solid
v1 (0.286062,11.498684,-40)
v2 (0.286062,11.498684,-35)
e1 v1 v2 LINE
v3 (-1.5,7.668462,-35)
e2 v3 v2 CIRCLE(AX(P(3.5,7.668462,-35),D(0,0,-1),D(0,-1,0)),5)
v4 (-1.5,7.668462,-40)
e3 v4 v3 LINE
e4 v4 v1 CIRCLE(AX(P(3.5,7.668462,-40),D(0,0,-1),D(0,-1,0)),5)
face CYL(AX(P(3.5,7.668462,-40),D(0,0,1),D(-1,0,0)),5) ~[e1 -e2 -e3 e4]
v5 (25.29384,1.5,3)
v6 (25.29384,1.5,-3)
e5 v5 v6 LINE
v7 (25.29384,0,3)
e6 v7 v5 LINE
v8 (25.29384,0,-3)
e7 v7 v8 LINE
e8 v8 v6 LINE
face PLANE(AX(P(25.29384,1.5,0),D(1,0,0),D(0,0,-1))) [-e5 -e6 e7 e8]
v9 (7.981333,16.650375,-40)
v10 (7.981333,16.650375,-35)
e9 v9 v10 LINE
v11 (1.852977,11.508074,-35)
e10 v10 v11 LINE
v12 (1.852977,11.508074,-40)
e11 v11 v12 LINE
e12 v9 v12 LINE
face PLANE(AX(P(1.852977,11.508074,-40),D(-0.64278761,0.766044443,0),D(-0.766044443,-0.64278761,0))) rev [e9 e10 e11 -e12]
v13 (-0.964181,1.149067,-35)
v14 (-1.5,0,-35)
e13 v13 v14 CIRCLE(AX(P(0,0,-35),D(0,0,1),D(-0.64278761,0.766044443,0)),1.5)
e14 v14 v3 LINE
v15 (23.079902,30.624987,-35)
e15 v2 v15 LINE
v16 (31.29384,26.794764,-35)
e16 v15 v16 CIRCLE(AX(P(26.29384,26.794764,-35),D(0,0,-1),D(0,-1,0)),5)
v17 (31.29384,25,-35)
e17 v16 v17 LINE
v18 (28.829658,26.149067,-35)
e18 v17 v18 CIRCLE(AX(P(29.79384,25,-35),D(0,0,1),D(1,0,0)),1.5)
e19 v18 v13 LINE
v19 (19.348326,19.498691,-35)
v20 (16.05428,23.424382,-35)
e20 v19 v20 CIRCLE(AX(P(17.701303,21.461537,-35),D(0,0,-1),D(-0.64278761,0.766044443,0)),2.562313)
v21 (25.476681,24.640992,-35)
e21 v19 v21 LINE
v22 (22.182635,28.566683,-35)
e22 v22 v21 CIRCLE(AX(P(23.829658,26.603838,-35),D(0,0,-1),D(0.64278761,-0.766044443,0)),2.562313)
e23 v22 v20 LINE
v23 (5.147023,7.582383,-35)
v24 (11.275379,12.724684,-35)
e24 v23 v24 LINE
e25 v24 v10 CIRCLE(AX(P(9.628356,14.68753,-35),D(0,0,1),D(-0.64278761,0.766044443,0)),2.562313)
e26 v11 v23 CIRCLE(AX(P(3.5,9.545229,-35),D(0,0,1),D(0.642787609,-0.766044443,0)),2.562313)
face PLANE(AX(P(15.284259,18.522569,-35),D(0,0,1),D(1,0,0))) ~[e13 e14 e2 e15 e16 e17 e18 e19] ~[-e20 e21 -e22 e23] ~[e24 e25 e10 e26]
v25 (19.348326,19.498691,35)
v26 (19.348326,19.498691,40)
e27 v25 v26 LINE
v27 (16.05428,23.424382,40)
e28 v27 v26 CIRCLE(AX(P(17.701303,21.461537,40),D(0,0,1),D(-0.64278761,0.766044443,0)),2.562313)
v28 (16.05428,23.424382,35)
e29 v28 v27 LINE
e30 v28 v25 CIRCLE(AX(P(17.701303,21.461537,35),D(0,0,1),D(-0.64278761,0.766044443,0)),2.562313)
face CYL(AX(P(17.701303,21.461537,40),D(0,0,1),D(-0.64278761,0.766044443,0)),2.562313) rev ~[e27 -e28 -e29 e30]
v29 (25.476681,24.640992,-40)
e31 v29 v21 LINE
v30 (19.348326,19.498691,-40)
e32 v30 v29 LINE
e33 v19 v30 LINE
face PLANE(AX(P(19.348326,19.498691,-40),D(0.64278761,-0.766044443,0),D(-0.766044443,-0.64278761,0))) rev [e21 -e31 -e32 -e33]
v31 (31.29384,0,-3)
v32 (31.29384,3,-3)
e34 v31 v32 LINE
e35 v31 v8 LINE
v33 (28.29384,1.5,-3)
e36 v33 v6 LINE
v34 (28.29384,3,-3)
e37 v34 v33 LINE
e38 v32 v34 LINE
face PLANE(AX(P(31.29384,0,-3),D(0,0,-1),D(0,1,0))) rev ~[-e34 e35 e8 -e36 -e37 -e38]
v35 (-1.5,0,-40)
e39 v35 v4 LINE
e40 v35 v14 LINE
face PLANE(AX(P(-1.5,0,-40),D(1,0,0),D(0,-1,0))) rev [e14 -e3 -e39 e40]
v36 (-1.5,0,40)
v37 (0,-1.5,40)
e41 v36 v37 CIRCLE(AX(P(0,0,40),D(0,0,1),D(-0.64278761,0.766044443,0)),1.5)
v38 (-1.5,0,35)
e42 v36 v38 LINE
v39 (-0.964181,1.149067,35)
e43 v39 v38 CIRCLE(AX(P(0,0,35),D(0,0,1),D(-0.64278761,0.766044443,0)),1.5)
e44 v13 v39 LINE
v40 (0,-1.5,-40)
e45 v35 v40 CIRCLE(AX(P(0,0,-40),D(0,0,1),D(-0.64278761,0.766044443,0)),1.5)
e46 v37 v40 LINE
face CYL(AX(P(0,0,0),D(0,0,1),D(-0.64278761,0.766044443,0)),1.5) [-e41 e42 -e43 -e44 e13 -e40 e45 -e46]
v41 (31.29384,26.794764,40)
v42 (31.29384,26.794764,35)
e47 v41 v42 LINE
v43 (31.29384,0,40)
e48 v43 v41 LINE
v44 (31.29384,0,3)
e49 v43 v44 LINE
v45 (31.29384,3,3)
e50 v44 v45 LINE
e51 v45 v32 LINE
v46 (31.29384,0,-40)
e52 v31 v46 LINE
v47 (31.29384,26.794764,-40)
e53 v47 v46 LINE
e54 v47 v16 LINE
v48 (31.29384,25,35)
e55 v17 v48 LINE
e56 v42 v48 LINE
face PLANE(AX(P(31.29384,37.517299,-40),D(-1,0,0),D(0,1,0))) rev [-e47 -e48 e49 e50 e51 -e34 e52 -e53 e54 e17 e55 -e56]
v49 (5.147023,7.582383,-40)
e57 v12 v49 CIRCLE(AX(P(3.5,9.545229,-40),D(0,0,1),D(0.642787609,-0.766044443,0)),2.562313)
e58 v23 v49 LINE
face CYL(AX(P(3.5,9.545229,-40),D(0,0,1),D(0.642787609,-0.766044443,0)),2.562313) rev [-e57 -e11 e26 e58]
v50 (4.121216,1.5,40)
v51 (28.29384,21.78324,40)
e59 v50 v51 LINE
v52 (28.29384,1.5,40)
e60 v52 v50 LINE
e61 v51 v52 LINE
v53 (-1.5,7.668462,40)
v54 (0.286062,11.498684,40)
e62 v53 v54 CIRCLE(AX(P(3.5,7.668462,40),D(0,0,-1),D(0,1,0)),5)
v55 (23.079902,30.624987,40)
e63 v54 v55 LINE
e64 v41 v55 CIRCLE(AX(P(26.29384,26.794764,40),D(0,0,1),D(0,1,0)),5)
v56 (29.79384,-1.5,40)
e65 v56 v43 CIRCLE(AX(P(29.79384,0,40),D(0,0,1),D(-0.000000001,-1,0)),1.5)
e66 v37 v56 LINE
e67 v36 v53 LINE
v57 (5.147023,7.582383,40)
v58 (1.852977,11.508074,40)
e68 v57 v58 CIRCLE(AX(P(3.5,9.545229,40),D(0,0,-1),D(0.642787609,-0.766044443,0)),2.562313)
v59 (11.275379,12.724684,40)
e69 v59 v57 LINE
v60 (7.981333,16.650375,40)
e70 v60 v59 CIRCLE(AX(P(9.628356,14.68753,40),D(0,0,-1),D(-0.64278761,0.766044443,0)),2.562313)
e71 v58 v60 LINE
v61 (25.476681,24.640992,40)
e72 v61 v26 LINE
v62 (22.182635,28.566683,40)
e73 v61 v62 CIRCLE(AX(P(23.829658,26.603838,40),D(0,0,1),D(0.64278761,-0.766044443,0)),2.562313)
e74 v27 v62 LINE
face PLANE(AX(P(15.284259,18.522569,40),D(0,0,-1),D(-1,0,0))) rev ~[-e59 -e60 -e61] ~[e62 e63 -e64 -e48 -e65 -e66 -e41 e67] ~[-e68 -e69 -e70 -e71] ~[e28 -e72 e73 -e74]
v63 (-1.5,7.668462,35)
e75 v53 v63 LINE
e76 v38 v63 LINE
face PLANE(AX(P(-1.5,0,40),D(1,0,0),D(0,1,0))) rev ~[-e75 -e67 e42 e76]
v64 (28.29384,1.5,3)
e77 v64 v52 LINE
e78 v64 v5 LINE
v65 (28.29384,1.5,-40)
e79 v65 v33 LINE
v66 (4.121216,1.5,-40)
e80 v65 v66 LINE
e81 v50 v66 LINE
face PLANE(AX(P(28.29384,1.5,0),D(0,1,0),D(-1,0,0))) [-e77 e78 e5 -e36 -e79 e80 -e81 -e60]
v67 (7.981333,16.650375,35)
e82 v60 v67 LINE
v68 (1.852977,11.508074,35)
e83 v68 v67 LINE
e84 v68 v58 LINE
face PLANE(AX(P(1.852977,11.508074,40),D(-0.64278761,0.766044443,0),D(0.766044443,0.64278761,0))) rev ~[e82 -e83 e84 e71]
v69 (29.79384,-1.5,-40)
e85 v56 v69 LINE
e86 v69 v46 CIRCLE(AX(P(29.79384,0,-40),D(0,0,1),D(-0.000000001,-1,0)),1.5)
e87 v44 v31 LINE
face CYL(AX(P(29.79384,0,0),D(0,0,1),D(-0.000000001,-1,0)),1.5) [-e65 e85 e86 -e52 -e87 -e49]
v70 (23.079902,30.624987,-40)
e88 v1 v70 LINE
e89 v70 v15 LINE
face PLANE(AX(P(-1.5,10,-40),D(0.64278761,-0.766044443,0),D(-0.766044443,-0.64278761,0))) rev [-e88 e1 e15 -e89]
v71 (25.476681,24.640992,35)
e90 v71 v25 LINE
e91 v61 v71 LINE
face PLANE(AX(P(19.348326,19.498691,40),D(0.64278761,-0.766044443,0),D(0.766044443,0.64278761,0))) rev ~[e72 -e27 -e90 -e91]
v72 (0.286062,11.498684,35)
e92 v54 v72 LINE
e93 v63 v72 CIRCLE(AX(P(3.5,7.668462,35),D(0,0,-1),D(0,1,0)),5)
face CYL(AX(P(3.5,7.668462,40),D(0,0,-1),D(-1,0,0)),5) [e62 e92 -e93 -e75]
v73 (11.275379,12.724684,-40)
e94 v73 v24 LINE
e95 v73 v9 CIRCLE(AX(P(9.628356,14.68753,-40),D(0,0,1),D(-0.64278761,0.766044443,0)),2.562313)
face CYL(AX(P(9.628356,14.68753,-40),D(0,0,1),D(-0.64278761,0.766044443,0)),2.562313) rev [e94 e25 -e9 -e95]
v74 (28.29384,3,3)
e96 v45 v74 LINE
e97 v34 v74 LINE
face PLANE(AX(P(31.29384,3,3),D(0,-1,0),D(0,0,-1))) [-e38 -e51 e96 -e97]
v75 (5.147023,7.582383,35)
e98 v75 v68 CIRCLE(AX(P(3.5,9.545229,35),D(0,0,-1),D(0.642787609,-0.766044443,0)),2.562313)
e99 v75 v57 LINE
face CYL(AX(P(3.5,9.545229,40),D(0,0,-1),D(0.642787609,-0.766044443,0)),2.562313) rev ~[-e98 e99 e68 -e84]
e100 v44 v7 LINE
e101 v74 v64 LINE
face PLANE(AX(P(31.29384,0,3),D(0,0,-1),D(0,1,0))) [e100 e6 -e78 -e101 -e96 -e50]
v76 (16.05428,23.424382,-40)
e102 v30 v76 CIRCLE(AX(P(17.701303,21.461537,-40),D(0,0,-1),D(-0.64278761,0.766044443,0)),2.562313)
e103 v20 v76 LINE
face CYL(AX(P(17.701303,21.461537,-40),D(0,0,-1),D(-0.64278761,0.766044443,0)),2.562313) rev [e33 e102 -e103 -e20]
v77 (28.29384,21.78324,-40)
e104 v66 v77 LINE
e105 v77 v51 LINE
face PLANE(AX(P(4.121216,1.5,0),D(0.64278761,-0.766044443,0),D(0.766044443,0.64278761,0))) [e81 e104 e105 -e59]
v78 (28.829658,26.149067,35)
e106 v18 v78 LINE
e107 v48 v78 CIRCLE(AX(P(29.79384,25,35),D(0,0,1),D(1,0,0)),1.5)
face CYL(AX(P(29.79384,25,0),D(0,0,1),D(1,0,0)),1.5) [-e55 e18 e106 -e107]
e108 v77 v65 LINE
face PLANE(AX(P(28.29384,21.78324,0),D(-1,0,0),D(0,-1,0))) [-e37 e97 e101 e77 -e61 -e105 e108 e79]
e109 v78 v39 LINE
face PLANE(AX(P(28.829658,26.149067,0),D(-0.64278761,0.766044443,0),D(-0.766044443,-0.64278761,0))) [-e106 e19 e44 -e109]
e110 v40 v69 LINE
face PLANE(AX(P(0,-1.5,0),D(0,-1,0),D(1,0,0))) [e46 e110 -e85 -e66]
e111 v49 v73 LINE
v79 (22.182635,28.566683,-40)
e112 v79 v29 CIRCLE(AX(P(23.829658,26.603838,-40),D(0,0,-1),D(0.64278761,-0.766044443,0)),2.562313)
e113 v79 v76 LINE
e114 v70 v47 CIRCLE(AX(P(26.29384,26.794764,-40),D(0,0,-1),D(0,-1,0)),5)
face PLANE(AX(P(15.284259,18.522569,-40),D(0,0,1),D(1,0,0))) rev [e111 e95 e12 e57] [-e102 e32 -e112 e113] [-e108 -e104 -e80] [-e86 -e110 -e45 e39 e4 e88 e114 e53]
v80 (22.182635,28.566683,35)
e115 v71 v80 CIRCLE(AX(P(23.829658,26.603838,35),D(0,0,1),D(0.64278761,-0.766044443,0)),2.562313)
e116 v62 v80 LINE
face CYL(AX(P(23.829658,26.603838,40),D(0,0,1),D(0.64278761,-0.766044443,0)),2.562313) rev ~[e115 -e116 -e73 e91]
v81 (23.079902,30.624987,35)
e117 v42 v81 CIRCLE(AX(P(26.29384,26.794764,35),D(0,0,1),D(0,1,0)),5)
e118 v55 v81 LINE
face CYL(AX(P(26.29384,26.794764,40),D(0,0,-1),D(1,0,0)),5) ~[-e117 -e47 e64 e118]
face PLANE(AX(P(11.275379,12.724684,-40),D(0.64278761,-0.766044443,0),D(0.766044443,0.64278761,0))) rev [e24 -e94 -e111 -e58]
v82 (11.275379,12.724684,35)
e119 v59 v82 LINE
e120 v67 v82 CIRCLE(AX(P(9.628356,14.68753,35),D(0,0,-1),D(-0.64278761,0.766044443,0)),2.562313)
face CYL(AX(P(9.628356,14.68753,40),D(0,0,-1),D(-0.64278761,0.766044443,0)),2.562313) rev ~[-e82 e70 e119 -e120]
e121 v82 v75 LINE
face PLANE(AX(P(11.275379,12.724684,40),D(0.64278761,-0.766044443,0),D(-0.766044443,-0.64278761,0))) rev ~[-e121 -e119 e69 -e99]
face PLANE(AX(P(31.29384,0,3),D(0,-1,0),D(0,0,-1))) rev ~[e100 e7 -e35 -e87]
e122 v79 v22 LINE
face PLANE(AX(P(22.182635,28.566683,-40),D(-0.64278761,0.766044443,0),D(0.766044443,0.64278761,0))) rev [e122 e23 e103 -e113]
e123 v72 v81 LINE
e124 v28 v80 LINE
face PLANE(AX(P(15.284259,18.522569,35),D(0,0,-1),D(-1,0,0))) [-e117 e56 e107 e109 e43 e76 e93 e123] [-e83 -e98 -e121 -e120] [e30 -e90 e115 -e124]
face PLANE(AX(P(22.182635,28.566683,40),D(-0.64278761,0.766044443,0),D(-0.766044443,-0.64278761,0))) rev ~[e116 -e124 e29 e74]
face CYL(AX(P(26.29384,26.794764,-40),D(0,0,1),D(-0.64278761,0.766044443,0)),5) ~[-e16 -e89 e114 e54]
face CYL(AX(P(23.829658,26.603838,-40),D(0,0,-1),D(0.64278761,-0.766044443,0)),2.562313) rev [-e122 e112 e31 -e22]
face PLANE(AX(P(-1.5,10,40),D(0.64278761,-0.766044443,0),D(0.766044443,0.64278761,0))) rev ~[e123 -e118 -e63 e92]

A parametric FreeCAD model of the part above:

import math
import FreeCAD as App
import Part
import Sketcher

V = App.Vector
Q = App.Units.Quantity


def edges_at(feature, points):
    """Names of the edges that pass closest to the given points."""
    edges = feature.Shape.Edges
    near = lambda p: min(range(len(edges)), key=lambda i: edges[i].distToShape(Part.Vertex(*p))[0])
    return sorted({f"Edge{near(p) + 1}" for p in points})


def add_polygon(sketch, points):
    """Adds a closed chain of lines whose ends are joined by coincident constraints."""
    first, n = sketch.GeometryCount, len(points)
    for a, b in zip(points, points[1:] + points[:1]):
        sketch.addGeometry(Part.LineSegment(App.Vector(*a, 0), App.Vector(*b, 0)), False)
    for i in range(n):
        sketch.addConstraint(Sketcher.Constraint("Coincident", first + i, 2, first + (i + 1) % n, 1))

doc = App.newDocument("Part")
body = doc.addObject("PartDesign::Body", "Body")

sketch1 = body.newObject("Sketcher::SketchObject", "Sketch")
sketch1.AttachmentSupport = (doc.getObject("XY_Plane"), [""])
sketch1.MapMode = "FlatFace"
sketch1.addGeometry(Part.LineSegment(V(31.29384, 0, 0), V(31.29384, 25, 0)), False)
sketch1.addGeometry(Part.ArcOfCircle(Part.Circle(V(29.79384, 25, 0), V(0, 0, 1), 1.5), math.radians(0), math.radians(130)), False)
sketch1.addGeometry(Part.LineSegment(V(28.829658, 26.149067, 0), V(-0.964181, 1.149067, 0)), False)
sketch1.addGeometry(Part.ArcOfCircle(Part.Circle(V(0, 0, 0), V(0, 0, 1), 1.5), math.radians(130), math.radians(270)), False)
sketch1.addGeometry(Part.LineSegment(V(0, -1.5, 0), V(29.79384, -1.5, 0)), False)
sketch1.addGeometry(Part.ArcOfCircle(Part.Circle(V(29.79384, 0, 0), V(0, 0, 1), 1.5), math.radians(-90), math.radians(0)), False)
add_polygon(sketch1, [(4.121216, 1.5), (28.29384, 21.78324), (28.29384, 1.5)])
sketch1.addConstraint([
    Sketcher.Constraint("Tangent", 0, 2, 1, 1),
    Sketcher.Constraint("Tangent", 1, 2, 2, 1),
    Sketcher.Constraint("Tangent", 2, 2, 3, 1),
    Sketcher.Constraint("Tangent", 3, 2, 4, 1),
    Sketcher.Constraint("Tangent", 4, 2, 5, 1),
    Sketcher.Constraint("Tangent", 5, 2, 0, 1),
    Sketcher.Constraint("Vertical", 0),
    Sketcher.Constraint("Horizontal", 4),
    Sketcher.Constraint("Vertical", 7),
    Sketcher.Constraint("Horizontal", 8),
    Sketcher.Constraint("Coincident", 3, 3, -1, 1),
    Sketcher.Constraint("Equal", 1, 3),
    Sketcher.Constraint("Equal", 3, 5),
    Sketcher.Constraint("Parallel", 2, 6),
    Sketcher.Constraint("Radius", 1, Q("1.5 mm")),
    Sketcher.Constraint("DistanceY", 0, 1, 0, 2, Q("25 mm")),
    Sketcher.Constraint("Angle", 2, Q("-140 deg")),
    Sketcher.Constraint("DistanceX", 6, 2, 0, 2, Q("3 mm")),
    Sketcher.Constraint("DistanceY", 4, 2, 7, 2, Q("3 mm")),
    Sketcher.Constraint("DistanceY", 7, 2, 7, 1, Q("20.28324 mm")),
])
pad1 = body.newObject("PartDesign::Pad", "Pad")
pad1.Profile = sketch1
pad1.Length = 80
pad1.Midplane = True

sketch2 = body.newObject("Sketcher::SketchObject", "Sketch001")
sketch2.AttachmentSupport = (doc.getObject("XY_Plane"), [""])
sketch2.MapMode = "FlatFace"
sketch2.AttachmentOffset = App.Placement(V(0, 0, 40), App.Rotation())
add_polygon(sketch2, [(-1.5, 10), (-1.5, 0), (31.29384, 25), (31.29384, 37.517299)])
sketch2.addConstraint([
    Sketcher.Constraint("Vertical", 0),
    Sketcher.Constraint("Vertical", 2),
    Sketcher.Constraint("PointOnObject", 0, 2, -1),
    Sketcher.Constraint("DistanceY", 0, 2, 0, 1, Q("10 mm")),
    Sketcher.Constraint("Angle", 3, Q("-140 deg")),
    Sketcher.Constraint("DistanceY", -1, 1, 1, 2, Q("25 mm")),
    Sketcher.Constraint("DistanceX", 0, 2, -1, 1, Q("1.5 mm")),
    Sketcher.Constraint("DistanceY", 2, 1, 2, 2, Q("12.517299 mm")),
])
pad2 = body.newObject("PartDesign::Pad", "Pad001")
pad2.Profile = sketch2
pad2.Length = 5
pad2.Reversed = True
doc.recompute()

fillet = body.newObject("PartDesign::Fillet", "Fillet")
fillet.Base = (pad2, edges_at(pad2, [(-1.5, 10, 37.5), (31.294, 37.517, 37.5)]))
fillet.Radius = 5

sketch3 = body.newObject("Sketcher::SketchObject", "Sketch002")
sketch3.AttachmentSupport = (doc.getObject("XY_Plane"), [""])
sketch3.MapMode = "FlatFace"
sketch3.AttachmentOffset = App.Placement(V(0, 0, 40), App.Rotation())
sketch3.addGeometry([
    Part.LineSegment(V(7.981333, 16.650375, 0), V(1.852977, 11.508074, 0)),
    Part.ArcOfCircle(Part.Circle(V(3.5, 9.545229, 0), V(0, 0, 1), 2.562313), math.radians(130), math.radians(310)),
    Part.LineSegment(V(5.147023, 7.582383, 0), V(11.275379, 12.724684, 0)),
    Part.ArcOfCircle(Part.Circle(V(9.628356, 14.68753, 0), V(0, 0, 1), 2.562313), math.radians(-50), math.radians(130)),
    Part.LineSegment(V(22.182635, 28.566683, 0), V(16.05428, 23.424382, 0)),
    Part.ArcOfCircle(Part.Circle(V(17.701303, 21.461537, 0), V(0, 0, 1), 2.562313), math.radians(130), math.radians(310)),
    Part.LineSegment(V(19.348326, 19.498691, 0), V(25.476681, 24.640992, 0)),
    Part.ArcOfCircle(Part.Circle(V(23.829658, 26.603838, 0), V(0, 0, 1), 2.562313), math.radians(-50), math.radians(130)),
], False)
sketch3.addConstraint([
    Sketcher.Constraint("Tangent", 0, 2, 1, 1),
    Sketcher.Constraint("Tangent", 1, 2, 2, 1),
    Sketcher.Constraint("Tangent", 2, 2, 3, 1),
    Sketcher.Constraint("Tangent", 3, 2, 0, 1),
    Sketcher.Constraint("Tangent", 4, 2, 5, 1),
    Sketcher.Constraint("Tangent", 5, 2, 6, 1),
    Sketcher.Constraint("Tangent", 6, 2, 7, 1),
    Sketcher.Constraint("Tangent", 7, 2, 4, 1),
    Sketcher.Constraint("Equal", 1, 3),
    Sketcher.Constraint("Equal", 3, 5),
    Sketcher.Constraint("Equal", 5, 7),
    Sketcher.Constraint("Parallel", 2, 4),
    Sketcher.Constraint("Equal", 2, 4),
    Sketcher.Constraint("Angle", 0, Q("-140 deg")),
    Sketcher.Constraint("Distance", 0, Q("8 mm")),
    Sketcher.Constraint("DistanceX", -1, 1, 1, 3, Q("3.5 mm")),
    Sketcher.Constraint("Radius", 1, Q("2.562313 mm")),
    Sketcher.Constraint("DistanceX", 2, 2, 4, 2, Q("4.778901 mm")),
    Sketcher.Constraint("DistanceY", 2, 2, 4, 2, Q("10.699698 mm")),
    Sketcher.Constraint("DistanceY", -1, 1, 1, 3, Q("9.545229 mm")),
])
pocket1 = body.newObject("PartDesign::Pocket", "Pocket")
pocket1.Profile = sketch3
pocket1.Length = 185.196195
pocket1.Midplane = True
doc.recompute()

mirrored = body.newObject("PartDesign::Mirrored", "Mirrored")
mirrored.Originals = [pad2, pocket1]
mirrored.MirrorPlane = (doc.getObject("XY_Plane"), [""])
body.Tip = mirrored
doc.recompute()

fillet2 = body.newObject("PartDesign::Fillet", "Fillet001")
fillet2.Base = (mirrored, edges_at(mirrored, [(-1.5, 10, -37.5), (31.294, 37.517, -37.5)]))
fillet2.Radius = 5

sketch4 = body.newObject("Sketcher::SketchObject", "Sketch003")
sketch4.AttachmentSupport = (doc.getObject("YZ_Plane"), [""])
sketch4.MapMode = "FlatFace"
sketch4.AttachmentOffset = App.Placement(V(0, 0, 31.29384), App.Rotation())
add_polygon(sketch4, [(3, 3), (0, 3), (0, -3), (3, -3)])
sketch4.addConstraint([
    Sketcher.Constraint("Horizontal", 0),
    Sketcher.Constraint("Vertical", 1),
    Sketcher.Constraint("Horizontal", 2),
    Sketcher.Constraint("Vertical", 3),
    Sketcher.Constraint("Symmetric", 0, 2, 1, 2, -1, 1),
    Sketcher.Constraint("DistanceX", 0, 2, 0, 1, Q("3 mm")),
    Sketcher.Constraint("DistanceY", 1, 2, 1, 1, Q("6 mm")),
])
pocket2 = body.newObject("PartDesign::Pocket", "Pocket001")
pocket2.Profile = sketch4
pocket2.Length = 6

doc.recompute()
